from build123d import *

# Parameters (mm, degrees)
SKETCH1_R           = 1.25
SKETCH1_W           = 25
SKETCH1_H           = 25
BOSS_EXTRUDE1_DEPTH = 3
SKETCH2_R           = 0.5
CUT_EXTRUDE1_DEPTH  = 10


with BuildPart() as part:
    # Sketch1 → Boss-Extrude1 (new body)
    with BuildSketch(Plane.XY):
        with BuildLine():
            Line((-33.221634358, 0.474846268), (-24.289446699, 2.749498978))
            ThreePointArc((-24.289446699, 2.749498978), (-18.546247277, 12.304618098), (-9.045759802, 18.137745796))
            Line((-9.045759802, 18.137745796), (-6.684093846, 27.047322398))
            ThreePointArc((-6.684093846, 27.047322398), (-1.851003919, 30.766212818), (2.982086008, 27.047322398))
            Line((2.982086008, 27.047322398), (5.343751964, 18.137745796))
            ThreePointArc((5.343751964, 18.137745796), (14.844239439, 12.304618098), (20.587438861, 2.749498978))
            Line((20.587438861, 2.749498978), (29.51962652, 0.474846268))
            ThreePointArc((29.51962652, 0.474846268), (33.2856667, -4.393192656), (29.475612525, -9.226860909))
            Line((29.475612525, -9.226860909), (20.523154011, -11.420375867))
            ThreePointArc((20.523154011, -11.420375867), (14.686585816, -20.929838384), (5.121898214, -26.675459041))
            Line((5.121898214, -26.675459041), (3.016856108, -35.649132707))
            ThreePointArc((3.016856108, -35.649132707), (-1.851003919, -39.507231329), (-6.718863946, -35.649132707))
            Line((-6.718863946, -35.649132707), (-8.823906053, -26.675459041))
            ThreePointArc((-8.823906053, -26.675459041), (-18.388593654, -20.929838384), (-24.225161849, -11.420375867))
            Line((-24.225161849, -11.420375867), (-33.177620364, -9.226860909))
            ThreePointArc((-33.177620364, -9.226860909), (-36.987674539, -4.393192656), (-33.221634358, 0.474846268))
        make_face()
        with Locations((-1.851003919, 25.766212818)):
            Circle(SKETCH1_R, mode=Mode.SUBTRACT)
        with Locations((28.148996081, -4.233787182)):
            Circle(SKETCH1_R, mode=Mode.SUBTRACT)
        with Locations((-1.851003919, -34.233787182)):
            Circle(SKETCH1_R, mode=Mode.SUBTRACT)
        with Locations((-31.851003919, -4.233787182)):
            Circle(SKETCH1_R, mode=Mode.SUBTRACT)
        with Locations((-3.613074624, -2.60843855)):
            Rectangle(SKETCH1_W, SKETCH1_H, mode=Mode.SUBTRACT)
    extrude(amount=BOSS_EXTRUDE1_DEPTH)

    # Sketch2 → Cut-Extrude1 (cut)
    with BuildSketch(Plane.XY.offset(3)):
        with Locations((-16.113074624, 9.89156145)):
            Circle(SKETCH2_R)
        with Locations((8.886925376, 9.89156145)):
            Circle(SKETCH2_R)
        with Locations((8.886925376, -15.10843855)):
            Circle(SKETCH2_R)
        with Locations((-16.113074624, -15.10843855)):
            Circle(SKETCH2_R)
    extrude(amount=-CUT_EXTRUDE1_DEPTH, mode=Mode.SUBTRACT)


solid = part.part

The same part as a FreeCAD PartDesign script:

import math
import FreeCAD as App
import Part
import Sketcher
from FreeCAD import Vector
Q = App.Units.Quantity


def add_polygon(sketch, points):
    """Adds a closed chain of lines whose ends are joined by coincident constraints."""
    first, n = sketch.GeometryCount, len(points)
    for a, b in zip(points, points[1:] + points[:1]):
        sketch.addGeometry(Part.LineSegment(App.Vector(*a, 0), App.Vector(*b, 0)), False)
    for i in range(n):
        sketch.addConstraint(Sketcher.Constraint("Coincident", first + i, 2, first + (i + 1) % n, 1))

doc = App.newDocument("Part")
body = doc.addObject("PartDesign::Body", "Body")

sketch1 = body.newObject("Sketcher::SketchObject", "Sketch")
sketch1.AttachmentSupport = (doc.getObject("XY_Plane"), [""])
sketch1.MapMode = "FlatFace"
sketch1.addGeometry(Part.LineSegment(Vector(-24.3, 2.7, 0), Vector(-33.2, 0.5, 0)), False)
sketch1.addGeometry(Part.ArcOfCircle(Part.Circle(Vector(-32, -4.4, 0), Vector(0, 0, 1), 5), math.radians(104), math.radians(256)), False)
sketch1.addGeometry(Part.LineSegment(Vector(-33.2, -9.2, 0), Vector(-24.2, -11.4, 0)), False)
sketch1.addGeometry(Part.ArcOfCircle(Part.Circle(Vector(-1.9, -4.2, 0), Vector(0, 0, 1), 23.5), math.radians(-162), math.radians(-107)), False)
sketch1.addGeometry(Part.LineSegment(Vector(-8.8, -26.7, 0), Vector(-6.7, -35.6, 0)), False)
sketch1.addGeometry(Part.ArcOfCircle(Part.Circle(Vector(-1.9, -34.5, 0), Vector(0, 0, 1), 5), math.radians(-167), math.radians(-13)), False)
sketch1.addGeometry(Part.LineSegment(Vector(3, -35.6, 0), Vector(5.1, -26.7, 0)), False)
sketch1.addGeometry(Part.ArcOfCircle(Part.Circle(Vector(-1.9, -4.2, 0), Vector(0, 0, 1), 23.5), math.radians(-73), math.radians(-18)), False)
sketch1.addGeometry(Part.LineSegment(Vector(20.5, -11.4, 0), Vector(29.5, -9.2, 0)), False)
sketch1.addGeometry(Part.ArcOfCircle(Part.Circle(Vector(28.3, -4.4, 0), Vector(0, 0, 1), 5), math.radians(-76), math.radians(76)), False)
sketch1.addGeometry(Part.LineSegment(Vector(29.5, 0.5, 0), Vector(20.6, 2.7, 0)), False)
sketch1.addGeometry(Part.ArcOfCircle(Part.Circle(Vector(-1.9, -4.2, 0), Vector(0, 0, 1), 23.5), math.radians(17), math.radians(72)), False)
sketch1.addGeometry(Part.LineSegment(Vector(5.3, 18.1, 0), Vector(3, 27, 0)), False)
sketch1.addGeometry(Part.ArcOfCircle(Part.Circle(Vector(-1.9, 25.8, 0), Vector(0, 0, 1), 5), math.radians(15), math.radians(165)), False)
sketch1.addGeometry(Part.LineSegment(Vector(-6.7, 27, 0), Vector(-9, 18.1, 0)), False)
sketch1.addGeometry(Part.ArcOfCircle(Part.Circle(Vector(-1.9, -4.2, 0), Vector(0, 0, 1), 23.5), math.radians(108), math.radians(163)), False)
sketch1.addGeometry(Part.Circle(Vector(-1.9, -34.2, 0), Vector(0, 0, 1), 1.2), False)
sketch1.addGeometry(Part.Circle(Vector(28.1, -4.2, 0), Vector(0, 0, 1), 1.2), False)
add_polygon(sketch1, [(-16.1, -15.1), (-16.1, 9.9), (8.9, 9.9), (8.9, -15.1)])
sketch1.addGeometry(Part.Circle(Vector(-31.9, -4.2, 0), Vector(0, 0, 1), 1.2), False)
sketch1.addGeometry(Part.Circle(Vector(-1.9, 25.8, 0), Vector(0, 0, 1), 1.2), False)
sketch1.addConstraint([
    Sketcher.Constraint("Tangent", 0, 2, 1, 1),
    Sketcher.Constraint("Tangent", 1, 2, 2, 1),
    Sketcher.Constraint("Coincident", 2, 2, 3, 1),
    Sketcher.Constraint("Coincident", 3, 2, 4, 1),
    Sketcher.Constraint("Tangent", 4, 2, 5, 1),
    Sketcher.Constraint("Tangent", 5, 2, 6, 1),
    Sketcher.Constraint("Coincident", 6, 2, 7, 1),
    Sketcher.Constraint("Coincident", 7, 2, 8, 1),
    Sketcher.Constraint("Tangent", 8, 2, 9, 1),
    Sketcher.Constraint("Tangent", 9, 2, 10, 1),
    Sketcher.Constraint("Coincident", 10, 2, 11, 1),
    Sketcher.Constraint("Coincident", 11, 2, 12, 1),
    Sketcher.Constraint("Tangent", 12, 2, 13, 1),
    Sketcher.Constraint("Tangent", 13, 2, 14, 1),
    Sketcher.Constraint("Coincident", 14, 2, 15, 1),
    Sketcher.Constraint("Coincident", 15, 2, 0, 1),
    Sketcher.Constraint("Vertical", 18),
    Sketcher.Constraint("Horizontal", 19),
    Sketcher.Constraint("Vertical", 20),
    Sketcher.Constraint("Horizontal", 21),
    Sketcher.Constraint("Coincident", 7, 3, 3, 3),
    Sketcher.Constraint("Coincident", 11, 3, 3, 3),
    Sketcher.Constraint("Coincident", 15, 3, 3, 3),
    Sketcher.Constraint("Coincident", 23, 3, 13, 3),
    Sketcher.Constraint("Equal", 1, 5),
    Sketcher.Constraint("Equal", 3, 7),
    Sketcher.Constraint("Equal", 5, 9),
    Sketcher.Constraint("Equal", 7, 11),
    Sketcher.Constraint("Equal", 9, 13),
    Sketcher.Constraint("Equal", 11, 15),
    Sketcher.Constraint("Equal", 16, 17),
    Sketcher.Constraint("Equal", 17, 22),
    Sketcher.Constraint("Equal", 22, 23),
    Sketcher.Constraint("Horizontal", 1, 3, 9, 3),
    Sketcher.Constraint("Horizontal", 15, 3, 17, 3),
    Sketcher.Constraint("Horizontal", 17, 3, 22, 3),
    Sketcher.Constraint("Horizontal", 4, 2, 5, 2),
    Sketcher.Constraint("Horizontal", 3, 2, 6, 2),
    Sketcher.Constraint("Horizontal", 2, 2, 7, 2),
    Sketcher.Constraint("Horizontal", 1, 2, 8, 2),
    Sketcher.Constraint("Horizontal", 0, 2, 9, 2),
    Sketcher.Constraint("Horizontal", 12, 2, 13, 2),
    Sketcher.Constraint("Horizontal", 11, 2, 14, 2),
    Sketcher.Constraint("Vertical", 15, 3, 16, 3),
    Sketcher.Constraint("Equal", 21, 18),
    Sketcher.Constraint("Equal", 0, 2),
    Sketcher.Constraint("Equal", 2, 4),
    Sketcher.Constraint("Equal", 10, 12),
    Sketcher.Constraint("Radius", 1, Q("5 mm")),
    Sketcher.Constraint("Diameter", 16, Q("2.5 mm")),
    Sketcher.Constraint("Radius", 3, Q("23.5 mm")),
    Sketcher.Constraint("DistanceX", 19, 1, 19, 2, Q("25 mm")),
    Sketcher.Constraint("DistanceY", 3, 3, 13, 3, Q("30 mm")),
    Sketcher.Constraint("DistanceY", 16, 3, 11, 3, Q("30 mm")),
    Sketcher.Constraint("DistanceX", 3, 3, 17, 3, Q("30 mm")),
    Sketcher.Constraint("DistanceX", 22, 3, 7, 3, Q("30 mm")),
    Sketcher.Constraint("DistanceX", -1, 1, 6, 2, Q("5.121898 mm")),
    Sketcher.Constraint("DistanceY", -1, 1, 10, 2, Q("2.749499 mm")),
    Sketcher.Constraint("DistanceY", 4, 2, 5, 3, Q("1.141901 mm")),
    Sketcher.Constraint("DistanceY", 6, 2, 8, 2, Q("17.448598 mm")),
    Sketcher.Constraint("DistanceY", 1, 3, -1, 1, Q("4.370509 mm")),
    Sketcher.Constraint("DistanceY", 5, 3, -1, 1, Q("34.507231 mm")),
    Sketcher.Constraint("DistanceY", -1, 1, 18, 2, Q("9.891561 mm")),
    Sketcher.Constraint("DistanceX", 0, 2, 18, 2, Q("17.10856 mm")),
])
pad1 = body.newObject("PartDesign::Pad", "Pad")
pad1.Profile = sketch1
pad1.Length = 3

sketch2 = body.newObject("Sketcher::SketchObject", "Sketch001")
sketch2.AttachmentSupport = (doc.getObject("XY_Plane"), [""])
sketch2.MapMode = "FlatFace"
sketch2.AttachmentOffset = App.Placement(Vector(0, 0, 3), App.Rotation())
sketch2.addGeometry([
    Part.Circle(Vector(-16.1, 9.9, 0), Vector(0, 0, 1), 0.5),
    Part.Circle(Vector(8.9, 9.9, 0), Vector(0, 0, 1), 0.5),
    Part.Circle(Vector(8.9, -15.1, 0), Vector(0, 0, 1), 0.5),
    Part.Circle(Vector(-16.1, -15.1, 0), Vector(0, 0, 1), 0.5),
], False)
sketch2.addConstraint([
    Sketcher.Constraint("Equal", 0, 1),
    Sketcher.Constraint("Equal", 1, 2),
    Sketcher.Constraint("Equal", 2, 3),
    Sketcher.Constraint("Horizontal", 0, 3, 1, 3),
    Sketcher.Constraint("Horizontal", 2, 3, 3, 3),
    Sketcher.Constraint("Vertical", 1, 3, 2, 3),
    Sketcher.Constraint("Vertical", 0, 3, 3, 3),
    Sketcher.Constraint("Diameter", 0, Q("1 mm")),
    Sketcher.Constraint("DistanceX", 0, 3, 1, 3, Q("25 mm")),
    Sketcher.Constraint("DistanceY", 2, 3, 1, 3, Q("25 mm")),
    Sketcher.Constraint("DistanceY", -1, 1, 0, 3, Q("9.891561 mm")),
    Sketcher.Constraint("DistanceX", 0, 3, -1, 1, Q("16.113075 mm")),
])
pocket1 = body.newObject("PartDesign::Pocket", "Pocket")
pocket1.Profile = sketch2
pocket1.Length = 10

doc.recompute()
